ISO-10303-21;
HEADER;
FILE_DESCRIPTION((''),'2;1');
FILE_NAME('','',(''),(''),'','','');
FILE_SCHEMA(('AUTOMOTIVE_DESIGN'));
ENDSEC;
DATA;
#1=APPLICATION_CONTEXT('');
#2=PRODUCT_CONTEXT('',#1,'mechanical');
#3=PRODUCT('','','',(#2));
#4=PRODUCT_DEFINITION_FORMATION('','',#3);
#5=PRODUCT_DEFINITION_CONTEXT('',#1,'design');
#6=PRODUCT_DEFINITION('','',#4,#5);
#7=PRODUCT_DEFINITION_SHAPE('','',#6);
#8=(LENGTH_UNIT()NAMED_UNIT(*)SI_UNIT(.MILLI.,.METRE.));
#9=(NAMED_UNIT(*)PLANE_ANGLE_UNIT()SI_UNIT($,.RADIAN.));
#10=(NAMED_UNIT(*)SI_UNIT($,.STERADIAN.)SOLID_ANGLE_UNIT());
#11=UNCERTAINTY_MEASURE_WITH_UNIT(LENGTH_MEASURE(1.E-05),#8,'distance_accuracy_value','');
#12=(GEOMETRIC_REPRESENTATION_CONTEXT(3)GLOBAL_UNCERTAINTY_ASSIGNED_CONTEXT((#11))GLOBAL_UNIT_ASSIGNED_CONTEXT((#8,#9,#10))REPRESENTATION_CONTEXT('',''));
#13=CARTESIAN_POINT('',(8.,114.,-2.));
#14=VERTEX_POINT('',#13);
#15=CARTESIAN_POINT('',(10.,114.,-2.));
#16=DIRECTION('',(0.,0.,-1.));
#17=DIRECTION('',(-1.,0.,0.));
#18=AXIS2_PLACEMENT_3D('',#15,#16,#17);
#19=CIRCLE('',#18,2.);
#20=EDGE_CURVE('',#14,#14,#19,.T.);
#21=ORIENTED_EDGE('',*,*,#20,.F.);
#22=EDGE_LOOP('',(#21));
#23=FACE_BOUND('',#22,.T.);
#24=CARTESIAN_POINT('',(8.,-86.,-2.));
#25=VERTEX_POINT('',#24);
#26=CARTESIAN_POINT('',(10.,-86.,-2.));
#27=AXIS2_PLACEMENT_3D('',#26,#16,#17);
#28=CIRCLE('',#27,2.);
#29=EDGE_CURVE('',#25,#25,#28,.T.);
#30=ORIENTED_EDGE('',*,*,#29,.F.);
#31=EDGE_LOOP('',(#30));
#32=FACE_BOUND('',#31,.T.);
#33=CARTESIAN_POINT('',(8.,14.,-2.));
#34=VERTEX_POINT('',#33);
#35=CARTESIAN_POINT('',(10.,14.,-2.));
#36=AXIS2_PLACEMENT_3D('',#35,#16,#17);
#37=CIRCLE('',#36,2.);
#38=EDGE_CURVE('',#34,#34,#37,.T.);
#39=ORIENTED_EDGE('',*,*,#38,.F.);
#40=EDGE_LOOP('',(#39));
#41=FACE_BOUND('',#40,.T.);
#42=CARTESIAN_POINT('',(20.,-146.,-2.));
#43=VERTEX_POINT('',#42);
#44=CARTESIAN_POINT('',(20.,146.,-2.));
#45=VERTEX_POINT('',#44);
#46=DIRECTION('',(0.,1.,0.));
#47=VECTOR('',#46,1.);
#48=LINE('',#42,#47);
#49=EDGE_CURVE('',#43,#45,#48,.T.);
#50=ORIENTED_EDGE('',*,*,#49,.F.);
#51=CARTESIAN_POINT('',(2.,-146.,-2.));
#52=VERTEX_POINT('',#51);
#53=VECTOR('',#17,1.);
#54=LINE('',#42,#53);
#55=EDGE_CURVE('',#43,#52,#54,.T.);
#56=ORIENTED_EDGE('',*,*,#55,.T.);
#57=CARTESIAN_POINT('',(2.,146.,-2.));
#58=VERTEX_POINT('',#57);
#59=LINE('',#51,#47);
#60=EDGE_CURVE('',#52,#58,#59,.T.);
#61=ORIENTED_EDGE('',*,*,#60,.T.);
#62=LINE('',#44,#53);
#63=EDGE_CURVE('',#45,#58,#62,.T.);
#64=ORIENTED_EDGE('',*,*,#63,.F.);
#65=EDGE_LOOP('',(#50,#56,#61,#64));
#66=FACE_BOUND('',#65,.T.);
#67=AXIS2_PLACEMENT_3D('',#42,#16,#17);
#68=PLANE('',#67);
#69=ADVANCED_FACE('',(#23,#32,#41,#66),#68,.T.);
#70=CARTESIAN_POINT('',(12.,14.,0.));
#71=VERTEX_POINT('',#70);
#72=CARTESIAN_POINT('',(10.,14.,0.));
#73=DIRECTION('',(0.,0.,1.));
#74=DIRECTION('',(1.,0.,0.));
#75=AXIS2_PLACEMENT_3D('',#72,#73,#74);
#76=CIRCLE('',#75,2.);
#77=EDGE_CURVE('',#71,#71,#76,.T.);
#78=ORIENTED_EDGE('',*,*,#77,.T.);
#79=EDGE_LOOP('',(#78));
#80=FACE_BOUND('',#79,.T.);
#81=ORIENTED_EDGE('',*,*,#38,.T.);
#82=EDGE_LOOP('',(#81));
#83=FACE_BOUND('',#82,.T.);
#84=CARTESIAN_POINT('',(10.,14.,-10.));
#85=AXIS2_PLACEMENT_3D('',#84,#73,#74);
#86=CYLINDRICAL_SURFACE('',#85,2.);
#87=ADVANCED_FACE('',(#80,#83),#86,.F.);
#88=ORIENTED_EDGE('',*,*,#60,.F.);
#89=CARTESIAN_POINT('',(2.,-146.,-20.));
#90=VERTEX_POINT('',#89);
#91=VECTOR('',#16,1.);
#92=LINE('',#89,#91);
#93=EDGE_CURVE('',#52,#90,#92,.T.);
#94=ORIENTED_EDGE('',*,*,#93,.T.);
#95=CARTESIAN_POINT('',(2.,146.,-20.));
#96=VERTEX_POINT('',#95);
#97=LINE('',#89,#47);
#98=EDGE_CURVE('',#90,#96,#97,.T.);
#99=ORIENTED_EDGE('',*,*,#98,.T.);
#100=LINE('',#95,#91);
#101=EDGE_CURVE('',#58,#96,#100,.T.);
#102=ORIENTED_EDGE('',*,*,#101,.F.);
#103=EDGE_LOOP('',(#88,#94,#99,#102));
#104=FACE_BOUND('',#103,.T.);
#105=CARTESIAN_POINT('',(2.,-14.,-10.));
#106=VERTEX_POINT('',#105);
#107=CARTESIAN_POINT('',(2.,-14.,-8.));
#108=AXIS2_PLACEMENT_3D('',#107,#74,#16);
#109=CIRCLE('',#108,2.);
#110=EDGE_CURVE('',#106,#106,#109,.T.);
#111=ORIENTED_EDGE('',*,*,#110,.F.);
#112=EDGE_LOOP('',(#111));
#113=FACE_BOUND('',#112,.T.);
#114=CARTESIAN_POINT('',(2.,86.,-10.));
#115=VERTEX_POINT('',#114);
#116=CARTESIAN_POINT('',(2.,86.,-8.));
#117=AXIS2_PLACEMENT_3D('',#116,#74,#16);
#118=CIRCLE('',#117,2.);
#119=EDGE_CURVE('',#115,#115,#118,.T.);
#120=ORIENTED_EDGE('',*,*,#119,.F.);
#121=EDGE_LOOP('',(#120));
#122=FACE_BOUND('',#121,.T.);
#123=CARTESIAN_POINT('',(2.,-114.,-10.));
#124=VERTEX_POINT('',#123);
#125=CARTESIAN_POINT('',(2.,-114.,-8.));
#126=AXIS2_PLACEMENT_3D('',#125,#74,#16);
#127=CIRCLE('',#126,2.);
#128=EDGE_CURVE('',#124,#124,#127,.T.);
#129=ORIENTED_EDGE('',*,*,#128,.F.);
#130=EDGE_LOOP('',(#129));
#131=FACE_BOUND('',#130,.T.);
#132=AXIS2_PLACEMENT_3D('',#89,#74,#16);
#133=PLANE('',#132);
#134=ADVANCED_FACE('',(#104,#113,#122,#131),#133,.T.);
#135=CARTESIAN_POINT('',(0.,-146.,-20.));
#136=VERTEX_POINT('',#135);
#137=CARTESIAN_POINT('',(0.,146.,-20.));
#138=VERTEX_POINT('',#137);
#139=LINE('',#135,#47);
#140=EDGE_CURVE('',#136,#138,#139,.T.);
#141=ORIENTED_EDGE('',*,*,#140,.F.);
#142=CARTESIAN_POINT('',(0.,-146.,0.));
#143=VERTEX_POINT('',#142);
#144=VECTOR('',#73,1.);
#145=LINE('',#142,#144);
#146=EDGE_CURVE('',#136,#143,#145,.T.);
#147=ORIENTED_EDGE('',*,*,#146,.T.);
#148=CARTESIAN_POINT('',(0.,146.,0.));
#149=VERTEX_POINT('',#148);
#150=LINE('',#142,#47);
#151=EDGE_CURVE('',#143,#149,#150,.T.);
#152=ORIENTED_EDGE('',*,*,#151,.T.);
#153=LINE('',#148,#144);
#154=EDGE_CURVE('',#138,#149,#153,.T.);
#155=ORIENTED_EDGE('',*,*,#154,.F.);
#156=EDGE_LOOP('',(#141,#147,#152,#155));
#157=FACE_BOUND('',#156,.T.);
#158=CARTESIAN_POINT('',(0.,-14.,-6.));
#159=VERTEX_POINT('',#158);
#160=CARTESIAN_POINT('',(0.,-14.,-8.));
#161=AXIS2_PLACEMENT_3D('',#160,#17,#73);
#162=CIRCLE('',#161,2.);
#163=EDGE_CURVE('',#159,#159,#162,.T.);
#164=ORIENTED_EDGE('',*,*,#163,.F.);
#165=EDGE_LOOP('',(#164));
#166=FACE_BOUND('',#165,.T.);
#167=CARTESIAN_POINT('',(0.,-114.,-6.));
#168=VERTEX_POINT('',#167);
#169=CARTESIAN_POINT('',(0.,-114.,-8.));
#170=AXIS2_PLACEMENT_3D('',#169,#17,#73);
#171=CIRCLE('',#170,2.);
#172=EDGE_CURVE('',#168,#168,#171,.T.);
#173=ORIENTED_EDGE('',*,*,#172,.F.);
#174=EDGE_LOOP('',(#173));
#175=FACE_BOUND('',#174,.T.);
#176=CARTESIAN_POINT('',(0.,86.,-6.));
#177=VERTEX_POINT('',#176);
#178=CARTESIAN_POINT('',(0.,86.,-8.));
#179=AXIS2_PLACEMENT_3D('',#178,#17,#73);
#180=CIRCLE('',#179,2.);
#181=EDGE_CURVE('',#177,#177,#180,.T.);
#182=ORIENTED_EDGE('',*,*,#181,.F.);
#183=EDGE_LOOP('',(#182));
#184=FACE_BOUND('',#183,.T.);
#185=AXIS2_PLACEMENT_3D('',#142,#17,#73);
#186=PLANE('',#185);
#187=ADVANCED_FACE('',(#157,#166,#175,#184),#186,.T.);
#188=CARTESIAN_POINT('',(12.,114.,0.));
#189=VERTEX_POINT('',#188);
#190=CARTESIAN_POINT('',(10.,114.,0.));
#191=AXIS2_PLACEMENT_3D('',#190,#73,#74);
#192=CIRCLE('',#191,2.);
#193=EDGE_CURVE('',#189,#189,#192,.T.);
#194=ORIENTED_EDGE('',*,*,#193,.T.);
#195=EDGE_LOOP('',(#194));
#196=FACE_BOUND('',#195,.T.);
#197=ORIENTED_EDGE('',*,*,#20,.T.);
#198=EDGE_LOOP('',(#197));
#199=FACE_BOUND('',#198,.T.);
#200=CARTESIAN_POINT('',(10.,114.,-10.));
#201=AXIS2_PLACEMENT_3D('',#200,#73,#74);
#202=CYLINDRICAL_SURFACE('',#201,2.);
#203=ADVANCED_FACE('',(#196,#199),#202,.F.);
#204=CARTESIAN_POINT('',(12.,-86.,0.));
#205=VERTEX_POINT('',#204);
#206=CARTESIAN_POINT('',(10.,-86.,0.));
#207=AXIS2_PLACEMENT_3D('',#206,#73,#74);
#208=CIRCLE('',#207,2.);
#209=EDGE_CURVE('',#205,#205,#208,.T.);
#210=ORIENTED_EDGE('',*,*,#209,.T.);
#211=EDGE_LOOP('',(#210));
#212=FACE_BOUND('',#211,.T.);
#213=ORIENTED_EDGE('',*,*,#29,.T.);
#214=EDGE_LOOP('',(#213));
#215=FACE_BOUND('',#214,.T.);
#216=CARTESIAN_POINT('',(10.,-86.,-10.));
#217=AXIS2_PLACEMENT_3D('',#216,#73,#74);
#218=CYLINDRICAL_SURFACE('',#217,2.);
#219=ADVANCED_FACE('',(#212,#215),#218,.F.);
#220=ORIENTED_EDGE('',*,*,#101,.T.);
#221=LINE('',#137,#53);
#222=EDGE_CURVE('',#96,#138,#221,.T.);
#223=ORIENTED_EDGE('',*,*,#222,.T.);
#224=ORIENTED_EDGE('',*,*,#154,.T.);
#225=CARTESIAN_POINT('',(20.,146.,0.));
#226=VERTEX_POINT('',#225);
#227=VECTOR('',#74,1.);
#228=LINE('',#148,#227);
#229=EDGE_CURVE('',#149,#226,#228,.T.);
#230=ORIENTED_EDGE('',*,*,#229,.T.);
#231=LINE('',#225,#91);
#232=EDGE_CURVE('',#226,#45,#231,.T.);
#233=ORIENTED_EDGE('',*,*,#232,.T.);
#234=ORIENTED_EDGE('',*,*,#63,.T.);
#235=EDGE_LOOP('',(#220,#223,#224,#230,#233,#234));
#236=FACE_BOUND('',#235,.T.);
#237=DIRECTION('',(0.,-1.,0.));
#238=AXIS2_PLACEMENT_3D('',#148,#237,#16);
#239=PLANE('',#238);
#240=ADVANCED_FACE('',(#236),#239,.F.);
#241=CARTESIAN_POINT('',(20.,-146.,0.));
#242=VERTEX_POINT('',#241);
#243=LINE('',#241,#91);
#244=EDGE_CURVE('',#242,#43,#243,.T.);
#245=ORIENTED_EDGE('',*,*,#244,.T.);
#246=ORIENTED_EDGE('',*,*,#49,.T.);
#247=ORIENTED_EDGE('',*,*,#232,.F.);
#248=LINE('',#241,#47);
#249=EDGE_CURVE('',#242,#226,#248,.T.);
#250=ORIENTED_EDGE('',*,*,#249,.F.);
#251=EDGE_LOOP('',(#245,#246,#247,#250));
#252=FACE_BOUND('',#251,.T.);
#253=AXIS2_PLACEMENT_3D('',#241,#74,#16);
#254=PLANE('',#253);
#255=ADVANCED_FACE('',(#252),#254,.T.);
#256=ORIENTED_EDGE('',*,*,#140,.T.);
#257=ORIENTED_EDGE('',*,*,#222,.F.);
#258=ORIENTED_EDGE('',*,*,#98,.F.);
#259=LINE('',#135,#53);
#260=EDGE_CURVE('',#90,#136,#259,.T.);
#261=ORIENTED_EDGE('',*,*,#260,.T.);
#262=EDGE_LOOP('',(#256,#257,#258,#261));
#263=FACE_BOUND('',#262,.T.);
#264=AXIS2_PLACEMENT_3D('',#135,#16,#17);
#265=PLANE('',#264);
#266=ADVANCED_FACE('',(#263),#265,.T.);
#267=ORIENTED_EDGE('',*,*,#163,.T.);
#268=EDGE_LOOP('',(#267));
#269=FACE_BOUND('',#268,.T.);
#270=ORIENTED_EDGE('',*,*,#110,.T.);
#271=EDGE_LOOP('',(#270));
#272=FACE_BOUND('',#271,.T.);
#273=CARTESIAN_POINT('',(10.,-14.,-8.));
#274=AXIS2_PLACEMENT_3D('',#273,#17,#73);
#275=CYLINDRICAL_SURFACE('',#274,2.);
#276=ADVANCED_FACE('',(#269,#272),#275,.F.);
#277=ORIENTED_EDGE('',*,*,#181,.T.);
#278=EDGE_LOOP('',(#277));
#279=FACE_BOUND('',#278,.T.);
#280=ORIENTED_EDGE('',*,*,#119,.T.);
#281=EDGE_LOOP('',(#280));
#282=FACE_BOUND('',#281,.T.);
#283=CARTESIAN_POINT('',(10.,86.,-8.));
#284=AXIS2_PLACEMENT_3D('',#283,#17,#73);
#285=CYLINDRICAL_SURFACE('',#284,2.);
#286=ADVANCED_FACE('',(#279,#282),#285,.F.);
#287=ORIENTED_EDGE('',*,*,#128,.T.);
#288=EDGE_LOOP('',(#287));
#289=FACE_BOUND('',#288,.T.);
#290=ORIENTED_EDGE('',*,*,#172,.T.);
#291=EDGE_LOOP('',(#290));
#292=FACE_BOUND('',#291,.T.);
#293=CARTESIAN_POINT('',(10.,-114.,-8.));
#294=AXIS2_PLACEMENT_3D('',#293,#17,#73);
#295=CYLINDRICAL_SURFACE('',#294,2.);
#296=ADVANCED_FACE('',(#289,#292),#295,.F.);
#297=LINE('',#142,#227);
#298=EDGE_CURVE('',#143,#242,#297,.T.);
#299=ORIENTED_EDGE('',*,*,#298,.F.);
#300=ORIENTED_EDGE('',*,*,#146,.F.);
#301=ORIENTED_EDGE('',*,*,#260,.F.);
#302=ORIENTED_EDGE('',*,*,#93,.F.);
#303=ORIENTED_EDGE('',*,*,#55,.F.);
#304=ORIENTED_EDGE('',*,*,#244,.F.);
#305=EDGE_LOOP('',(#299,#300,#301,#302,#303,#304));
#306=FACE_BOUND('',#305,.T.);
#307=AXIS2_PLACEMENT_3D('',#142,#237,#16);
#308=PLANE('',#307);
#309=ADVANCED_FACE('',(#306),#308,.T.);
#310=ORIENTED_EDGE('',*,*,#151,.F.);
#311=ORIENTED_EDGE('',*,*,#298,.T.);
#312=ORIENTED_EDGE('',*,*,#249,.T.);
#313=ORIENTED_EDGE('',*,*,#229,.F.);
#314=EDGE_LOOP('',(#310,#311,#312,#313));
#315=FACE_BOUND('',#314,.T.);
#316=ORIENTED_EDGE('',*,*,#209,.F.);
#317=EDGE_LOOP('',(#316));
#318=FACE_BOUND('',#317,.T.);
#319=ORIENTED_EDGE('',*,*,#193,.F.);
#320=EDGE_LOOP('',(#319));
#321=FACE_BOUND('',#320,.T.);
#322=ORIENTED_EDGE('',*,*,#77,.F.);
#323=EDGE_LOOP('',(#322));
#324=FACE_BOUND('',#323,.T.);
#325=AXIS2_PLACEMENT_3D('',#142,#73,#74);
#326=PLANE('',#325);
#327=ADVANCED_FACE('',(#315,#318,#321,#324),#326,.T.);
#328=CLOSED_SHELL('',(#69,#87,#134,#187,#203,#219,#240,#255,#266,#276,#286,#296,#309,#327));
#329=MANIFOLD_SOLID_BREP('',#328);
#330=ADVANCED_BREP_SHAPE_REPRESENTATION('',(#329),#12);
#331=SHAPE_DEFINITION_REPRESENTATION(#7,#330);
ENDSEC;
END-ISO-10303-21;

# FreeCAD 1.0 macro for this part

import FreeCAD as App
import Part
import Sketcher
Q = App.Units.Quantity

doc = App.newDocument("Part")
body = doc.addObject("PartDesign::Body", "Body")

# Sketch on XZ plane
sketch1 = body.newObject("Sketcher::SketchObject", "Sketch")
sketch1.AttachmentSupport = (doc.getObject("XZ_Plane"), [""])
sketch1.MapMode = "FlatFace"
sketch1.addGeometry(Part.LineSegment(App.Vector(0, 0, 0), App.Vector(20, 0, 0)), False)
sketch1.addGeometry(Part.LineSegment(App.Vector(20, 0, 0), App.Vector(20, -2, 0)), False)
sketch1.addGeometry(Part.LineSegment(App.Vector(20, -2, 0), App.Vector(2, -2, 0)), False)
sketch1.addGeometry(Part.LineSegment(App.Vector(2, -2, 0), App.Vector(2, -20, 0)), False)
sketch1.addGeometry(Part.LineSegment(App.Vector(2, -20, 0), App.Vector(0, -20, 0)), False)
sketch1.addGeometry(Part.LineSegment(App.Vector(0, -20, 0), App.Vector(0, 0, 0)), False)
sketch1.addConstraint(Sketcher.Constraint("Coincident", 0, 2, 1, 1))
sketch1.addConstraint(Sketcher.Constraint("Coincident", 1, 2, 2, 1))
sketch1.addConstraint(Sketcher.Constraint("Coincident", 2, 2, 3, 1))
sketch1.addConstraint(Sketcher.Constraint("Coincident", 3, 2, 4, 1))
sketch1.addConstraint(Sketcher.Constraint("Coincident", 4, 2, 5, 1))
sketch1.addConstraint(Sketcher.Constraint("Coincident", 5, 2, 0, 1))
sketch1.addConstraint(Sketcher.Constraint("Horizontal", 0))
sketch1.addConstraint(Sketcher.Constraint("Vertical", 1))
sketch1.addConstraint(Sketcher.Constraint("Horizontal", 2))
sketch1.addConstraint(Sketcher.Constraint("Vertical", 3))
sketch1.addConstraint(Sketcher.Constraint("Horizontal", 4))
sketch1.addConstraint(Sketcher.Constraint("Vertical", 5))
sketch1.addConstraint(Sketcher.Constraint("Coincident", 5, 2, -1, 1))
sketch1.addConstraint(Sketcher.Constraint("Equal", 4, 1))
sketch1.addConstraint(Sketcher.Constraint("Equal", 2, 3))
sketch1.addConstraint(Sketcher.Constraint("DistanceX", 0, 1, 0, 2, Q("20 mm")))
sketch1.addConstraint(Sketcher.Constraint("DistanceX", 2, 2, 2, 1, Q("18 mm")))
pad1 = body.newObject("PartDesign::Pad", "Pad")
pad1.Profile = sketch1
pad1.Type = "TwoLengths"
pad1.Length = 146
pad1.Length2 = 146
pad1.Reversed = True

# Sketch on XY plane
sketch2 = body.newObject("Sketcher::SketchObject", "Sketch001")
sketch2.AttachmentSupport = (doc.getObject("XY_Plane"), [""])
sketch2.MapMode = "FlatFace"
sketch2.addGeometry(Part.Circle(App.Vector(10, 114, 0), App.Vector(0, 0, 1), 2), False)
sketch2.addGeometry(Part.Circle(App.Vector(10, 14, 0), App.Vector(0, 0, 1), 2), False)
sketch2.addGeometry(Part.Circle(App.Vector(10, -86, 0), App.Vector(0, 0, 1), 2), False)
sketch2.addConstraint(Sketcher.Constraint("Equal", 0, 1))
sketch2.addConstraint(Sketcher.Constraint("Equal", 1, 2))
sketch2.addConstraint(Sketcher.Constraint("Vertical", 0, 3, 1, 3))
sketch2.addConstraint(Sketcher.Constraint("Vertical", 1, 3, 2, 3))
sketch2.addConstraint(Sketcher.Constraint("Diameter", 0, Q("4 mm")))
sketch2.addConstraint(Sketcher.Constraint("DistanceX", -1, 1, 0, 3, Q("10 mm")))
sketch2.addConstraint(Sketcher.Constraint("DistanceY", -1, 1, 0, 3, Q("114 mm")))
sketch2.addConstraint(Sketcher.Constraint("DistanceY", -1, 1, 1, 3, Q("14 mm")))
sketch2.addConstraint(Sketcher.Constraint("DistanceY", 2, 3, -1, 1, Q("86 mm")))
pocket1 = body.newObject("PartDesign::Pocket", "Pocket")
pocket1.Profile = sketch2
pocket1.Length = 10

# Sketch on YZ plane
sketch3 = body.newObject("Sketcher::SketchObject", "Sketch002")
sketch3.AttachmentSupport = (doc.getObject("YZ_Plane"), [""])
sketch3.MapMode = "FlatFace"
sketch3.addGeometry(Part.Circle(App.Vector(-114, -8, 0), App.Vector(0, 0, 1), 2), False)
sketch3.addGeometry(Part.Circle(App.Vector(-14, -8, 0), App.Vector(0, 0, 1), 2), False)
sketch3.addGeometry(Part.Circle(App.Vector(86, -8, 0), App.Vector(0, 0, 1), 2), False)
sketch3.addConstraint(Sketcher.Constraint("Equal", 0, 1))
sketch3.addConstraint(Sketcher.Constraint("Equal", 1, 2))
sketch3.addConstraint(Sketcher.Constraint("Horizontal", 0, 3, 1, 3))
sketch3.addConstraint(Sketcher.Constraint("Horizontal", 1, 3, 2, 3))
sketch3.addConstraint(Sketcher.Constraint("Diameter", 0, Q("4 mm")))
sketch3.addConstraint(Sketcher.Constraint("DistanceX", 0, 3, -1, 1, Q("114 mm")))
sketch3.addConstraint(Sketcher.Constraint("DistanceY", 0, 3, -1, 1, Q("8 mm")))
sketch3.addConstraint(Sketcher.Constraint("DistanceX", 1, 3, -1, 1, Q("14 mm")))
sketch3.addConstraint(Sketcher.Constraint("DistanceX", -1, 1, 2, 3, Q("86 mm")))
pocket2 = body.newObject("PartDesign::Pocket", "Pocket001")
pocket2.Profile = sketch3
pocket2.Length = 10
pocket2.Reversed = True

doc.recompute()
